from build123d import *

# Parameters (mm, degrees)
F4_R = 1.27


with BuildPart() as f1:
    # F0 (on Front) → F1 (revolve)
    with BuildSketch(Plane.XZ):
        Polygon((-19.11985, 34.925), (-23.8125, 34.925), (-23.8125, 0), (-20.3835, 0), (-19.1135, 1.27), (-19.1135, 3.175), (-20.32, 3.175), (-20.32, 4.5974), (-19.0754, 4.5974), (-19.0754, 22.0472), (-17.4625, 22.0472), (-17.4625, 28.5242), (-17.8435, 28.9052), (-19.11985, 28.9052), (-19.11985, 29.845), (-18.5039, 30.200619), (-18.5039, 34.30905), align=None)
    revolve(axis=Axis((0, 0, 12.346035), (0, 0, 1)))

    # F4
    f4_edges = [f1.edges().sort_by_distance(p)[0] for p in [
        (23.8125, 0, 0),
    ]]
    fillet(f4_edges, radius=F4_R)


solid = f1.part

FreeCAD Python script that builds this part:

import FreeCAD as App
import Part
import Sketcher
from FreeCAD import Vector
Q = App.Units.Quantity


def edges_at(feature, points):
    """Names of the edges that pass closest to the given points."""
    edges = feature.Shape.Edges
    near = lambda p: min(range(len(edges)), key=lambda i: edges[i].distToShape(Part.Vertex(*p))[0])
    return sorted({f"Edge{near(p) + 1}" for p in points})


def add_polygon(sketch, points):
    """Adds a closed chain of lines whose ends are joined by coincident constraints."""
    first, n = sketch.GeometryCount, len(points)
    for a, b in zip(points, points[1:] + points[:1]):
        sketch.addGeometry(Part.LineSegment(App.Vector(*a, 0), App.Vector(*b, 0)), False)
    for i in range(n):
        sketch.addConstraint(Sketcher.Constraint("Coincident", first + i, 2, first + (i + 1) % n, 1))

doc = App.newDocument("Part")
body = doc.addObject("PartDesign::Body", "Body")

# Sketch on XZ plane
sketch1 = body.newObject("Sketcher::SketchObject", "Sketch")
sketch1.AttachmentSupport = (doc.getObject("XZ_Plane"), [""])
sketch1.MapMode = "FlatFace"
add_polygon(sketch1, [(-19.1, 34.9), (-23.8, 34.9), (-23.8, 0), (-20.4, 0), (-19.1, 1.3), (-19.1, 3.2), (-20.3, 3.2), (-20.3, 4.6), (-19.1, 4.6), (-19.1, 22), (-17.5, 22), (-17.5, 28.5), (-17.8, 28.9), (-19.1, 28.9), (-19.1, 29.8), (-18.5, 30.2), (-18.5, 34.3)])  # lines 0-16
sketch1.addConstraint([
    Sketcher.Constraint("Horizontal", 0),
    Sketcher.Constraint("Vertical", 1),
    Sketcher.Constraint("Horizontal", 2),
    Sketcher.Constraint("Vertical", 4),
    Sketcher.Constraint("Horizontal", 5),
    Sketcher.Constraint("Vertical", 6),
    Sketcher.Constraint("Horizontal", 7),
    Sketcher.Constraint("Vertical", 8),
    Sketcher.Constraint("Horizontal", 9),
    Sketcher.Constraint("Vertical", 10),
    Sketcher.Constraint("Horizontal", 12),
    Sketcher.Constraint("Vertical", 13),
    Sketcher.Constraint("Vertical", 15),
    Sketcher.Constraint("PointOnObject", 1, 2, -1),
    Sketcher.Constraint("Perpendicular", 3, 11),
    Sketcher.Constraint("Parallel", 11, 16),
    Sketcher.Constraint("Vertical", 13, 2, 16, 2),
    Sketcher.Constraint("Angle", 3, Q("45 deg")),
    Sketcher.Constraint("Angle", 14, Q("30.000007 deg")),
    Sketcher.Constraint("DistanceX", 5, 2, -1, 1, Q("0.8 in")),
    Sketcher.Constraint("DistanceY", 13, 2, 0, 2, Q("0.2 in")),
    Sketcher.Constraint("DistanceX", 2, 1, 2, 2, Q("0.135 in")),
    Sketcher.Constraint("DistanceX", 7, 1, 7, 2, Q("0.049 in")),
    Sketcher.Constraint("DistanceY", 1, 2, 1, 1, Q("1.375 in")),
    Sketcher.Constraint("DistanceY", 4, 1, 4, 2, Q("0.075 in")),
    Sketcher.Constraint("DistanceY", 6, 1, 6, 2, Q("0.056 in")),
    Sketcher.Constraint("DistanceY", 8, 1, 8, 2, Q("0.687 in")),
    Sketcher.Constraint("DistanceY", 10, 1, 10, 2, Q("0.255 in")),
    Sketcher.Constraint("DistanceY", 13, 1, 13, 2, Q("0.037 in")),
    Sketcher.Constraint("DistanceY", -1, 1, 3, 2, Q("0.05 in")),
    Sketcher.Constraint("DistanceX", 0, 2, 9, 2, Q("0.25 in")),
    Sketcher.Constraint("DistanceX", 5, 2, 5, 1, Q("0.0475 in")),
    Sketcher.Constraint("DistanceX", 14, 2, 11, 2, Q("0.026 in")),
    Sketcher.Constraint("DistanceX", 0, 2, 0, 1, 4.69265),
])
revolution = body.newObject("PartDesign::Revolution", "Revolution")
revolution.Profile = sketch1
revolution.ReferenceAxis = (sketch1, ["V_Axis"])
revolution.Angle = 360
doc.recompute()

fillet = body.newObject("PartDesign::Fillet", "Fillet")
fillet.Base = (revolution, edges_at(revolution, [(23.812, 0, 0)]))
fillet.Radius = Q("0.05 in")

doc.recompute()
